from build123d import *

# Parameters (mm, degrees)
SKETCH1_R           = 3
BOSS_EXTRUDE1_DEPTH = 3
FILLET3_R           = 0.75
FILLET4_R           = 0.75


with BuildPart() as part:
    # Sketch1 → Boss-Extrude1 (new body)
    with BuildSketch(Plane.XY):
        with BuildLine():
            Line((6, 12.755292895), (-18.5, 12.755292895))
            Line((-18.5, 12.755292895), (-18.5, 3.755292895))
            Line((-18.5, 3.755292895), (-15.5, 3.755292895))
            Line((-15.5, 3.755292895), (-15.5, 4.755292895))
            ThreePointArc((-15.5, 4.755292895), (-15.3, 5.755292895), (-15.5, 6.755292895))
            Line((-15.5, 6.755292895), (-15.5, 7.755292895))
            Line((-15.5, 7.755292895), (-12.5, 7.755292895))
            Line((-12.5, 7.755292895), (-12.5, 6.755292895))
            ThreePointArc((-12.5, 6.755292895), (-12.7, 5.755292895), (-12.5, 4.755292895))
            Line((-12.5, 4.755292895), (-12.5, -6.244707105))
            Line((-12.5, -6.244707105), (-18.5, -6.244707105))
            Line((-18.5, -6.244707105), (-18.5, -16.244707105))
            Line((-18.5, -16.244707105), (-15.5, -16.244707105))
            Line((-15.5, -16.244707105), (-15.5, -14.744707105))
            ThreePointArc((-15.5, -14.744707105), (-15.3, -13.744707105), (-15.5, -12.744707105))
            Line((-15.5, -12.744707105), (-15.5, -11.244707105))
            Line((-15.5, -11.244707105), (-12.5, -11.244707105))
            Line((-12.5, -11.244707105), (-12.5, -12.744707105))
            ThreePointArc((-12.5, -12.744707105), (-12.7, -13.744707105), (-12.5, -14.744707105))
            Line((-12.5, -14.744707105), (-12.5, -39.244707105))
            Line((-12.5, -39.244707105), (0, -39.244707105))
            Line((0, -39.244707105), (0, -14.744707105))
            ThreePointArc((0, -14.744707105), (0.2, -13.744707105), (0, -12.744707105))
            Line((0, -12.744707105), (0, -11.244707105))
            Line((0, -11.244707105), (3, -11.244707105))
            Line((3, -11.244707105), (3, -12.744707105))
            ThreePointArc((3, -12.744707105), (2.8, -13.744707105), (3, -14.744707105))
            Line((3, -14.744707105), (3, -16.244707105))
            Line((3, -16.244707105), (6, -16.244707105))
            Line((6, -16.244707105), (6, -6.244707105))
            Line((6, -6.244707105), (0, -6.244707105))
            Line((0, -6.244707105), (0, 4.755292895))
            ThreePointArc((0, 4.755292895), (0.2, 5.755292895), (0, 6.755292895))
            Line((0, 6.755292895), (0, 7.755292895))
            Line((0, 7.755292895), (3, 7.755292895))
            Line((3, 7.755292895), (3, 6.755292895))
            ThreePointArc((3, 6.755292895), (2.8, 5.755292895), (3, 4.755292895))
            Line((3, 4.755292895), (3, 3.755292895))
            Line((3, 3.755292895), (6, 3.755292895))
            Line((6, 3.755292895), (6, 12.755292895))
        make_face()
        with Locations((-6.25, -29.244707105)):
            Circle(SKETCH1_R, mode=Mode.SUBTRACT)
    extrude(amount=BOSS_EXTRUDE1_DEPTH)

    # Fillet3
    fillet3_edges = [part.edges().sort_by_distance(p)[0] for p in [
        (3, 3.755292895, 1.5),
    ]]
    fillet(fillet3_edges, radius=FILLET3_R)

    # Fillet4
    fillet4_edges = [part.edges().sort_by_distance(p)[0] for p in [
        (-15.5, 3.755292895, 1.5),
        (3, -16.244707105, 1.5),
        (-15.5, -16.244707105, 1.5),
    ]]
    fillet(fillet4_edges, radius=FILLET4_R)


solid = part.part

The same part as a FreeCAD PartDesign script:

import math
import FreeCAD as App
import Part
import Sketcher


def edges_at(feature, points):
    """Names of the edges that pass closest to the given points."""
    edges = feature.Shape.Edges
    near = lambda p: min(range(len(edges)), key=lambda i: edges[i].distToShape(Part.Vertex(*p))[0])
    return sorted({f"Edge{near(p) + 1}" for p in points})

doc = App.newDocument("Part")
body = doc.addObject("PartDesign::Body", "Body")

# Sketch on XY plane
sketch1 = body.newObject("Sketcher::SketchObject", "Sketch")
sketch1.AttachmentSupport = (doc.getObject("XY_Plane"), [""])
sketch1.MapMode = "FlatFace"
sketch1.addGeometry([
    Part.LineSegment(App.Vector(6, 12.8, 0), App.Vector(-18.5, 12.8, 0)),  # 0
    Part.LineSegment(App.Vector(-18.5, 12.8, 0), App.Vector(-18.5, 3.8, 0)),  # 1
    Part.LineSegment(App.Vector(-18.5, 3.8, 0), App.Vector(-15.5, 3.8, 0)),  # 2
    Part.LineSegment(App.Vector(-15.5, 3.8, 0), App.Vector(-15.5, 4.8, 0)),  # 3
    Part.ArcOfCircle(Part.Circle(App.Vector(-17.9, 5.8, 0), App.Vector(0, 0, 1), 2.6), math.radians(-23), math.radians(23)),  # 4
    Part.LineSegment(App.Vector(-15.5, 6.8, 0), App.Vector(-15.5, 7.8, 0)),  # 5
    Part.LineSegment(App.Vector(-15.5, 7.8, 0), App.Vector(-12.5, 7.8, 0)),  # 6
    Part.LineSegment(App.Vector(-12.5, 7.8, 0), App.Vector(-12.5, 6.8, 0)),  # 7
    Part.ArcOfCircle(Part.Circle(App.Vector(-10.1, 5.8, 0), App.Vector(0, 0, 1), 2.6), math.radians(157), math.radians(203)),  # 8
    Part.LineSegment(App.Vector(-12.5, 4.8, 0), App.Vector(-12.5, -6.2, 0)),  # 9
    Part.LineSegment(App.Vector(-12.5, -6.2, 0), App.Vector(-18.5, -6.2, 0)),  # 10
    Part.LineSegment(App.Vector(-18.5, -6.2, 0), App.Vector(-18.5, -16.2, 0)),  # 11
    Part.LineSegment(App.Vector(-18.5, -16.2, 0), App.Vector(-15.5, -16.2, 0)),  # 12
    Part.LineSegment(App.Vector(-15.5, -16.2, 0), App.Vector(-15.5, -14.7, 0)),  # 13
    Part.ArcOfCircle(Part.Circle(App.Vector(-17.9, -13.7, 0), App.Vector(0, 0, 1), 2.6), math.radians(-23), math.radians(23)),  # 14
    Part.LineSegment(App.Vector(-15.5, -12.7, 0), App.Vector(-15.5, -11.2, 0)),  # 15
    Part.LineSegment(App.Vector(-15.5, -11.2, 0), App.Vector(-12.5, -11.2, 0)),  # 16
    Part.LineSegment(App.Vector(-12.5, -11.2, 0), App.Vector(-12.5, -12.7, 0)),  # 17
    Part.ArcOfCircle(Part.Circle(App.Vector(-10.1, -13.7, 0), App.Vector(0, 0, 1), 2.6), math.radians(157), math.radians(203)),  # 18
    Part.LineSegment(App.Vector(-12.5, -14.7, 0), App.Vector(-12.5, -39.2, 0)),  # 19
    Part.LineSegment(App.Vector(-12.5, -39.2, 0), App.Vector(0, -39.2, 0)),  # 20
    Part.LineSegment(App.Vector(0, -39.2, 0), App.Vector(0, -14.7, 0)),  # 21
    Part.ArcOfCircle(Part.Circle(App.Vector(-2.4, -13.7, 0), App.Vector(0, 0, 1), 2.6), math.radians(-23), math.radians(23)),  # 22
    Part.LineSegment(App.Vector(0, -12.7, 0), App.Vector(0, -11.2, 0)),  # 23
    Part.LineSegment(App.Vector(0, -11.2, 0), App.Vector(3, -11.2, 0)),  # 24
    Part.LineSegment(App.Vector(3, -11.2, 0), App.Vector(3, -12.7, 0)),  # 25
    Part.ArcOfCircle(Part.Circle(App.Vector(5.4, -13.7, 0), App.Vector(0, 0, 1), 2.6), math.radians(157), math.radians(203)),  # 26
    Part.LineSegment(App.Vector(3, -14.7, 0), App.Vector(3, -16.2, 0)),  # 27
    Part.LineSegment(App.Vector(3, -16.2, 0), App.Vector(6, -16.2, 0)),  # 28
    Part.LineSegment(App.Vector(6, -16.2, 0), App.Vector(6, -6.2, 0)),  # 29
    Part.LineSegment(App.Vector(6, -6.2, 0), App.Vector(0, -6.2, 0)),  # 30
    Part.LineSegment(App.Vector(0, -6.2, 0), App.Vector(0, 4.8, 0)),  # 31
    Part.ArcOfCircle(Part.Circle(App.Vector(-2.4, 5.8, 0), App.Vector(0, 0, 1), 2.6), math.radians(-23), math.radians(23)),  # 32
    Part.LineSegment(App.Vector(0, 6.8, 0), App.Vector(0, 7.8, 0)),  # 33
    Part.LineSegment(App.Vector(0, 7.8, 0), App.Vector(3, 7.8, 0)),  # 34
    Part.LineSegment(App.Vector(3, 7.8, 0), App.Vector(3, 6.8, 0)),  # 35
    Part.ArcOfCircle(Part.Circle(App.Vector(5.4, 5.8, 0), App.Vector(0, 0, 1), 2.6), math.radians(157), math.radians(203)),  # 36
    Part.LineSegment(App.Vector(3, 4.8, 0), App.Vector(3, 3.8, 0)),  # 37
    Part.LineSegment(App.Vector(3, 3.8, 0), App.Vector(6, 3.8, 0)),  # 38
    Part.LineSegment(App.Vector(6, 3.8, 0), App.Vector(6, 12.8, 0)),  # 39
    Part.Circle(App.Vector(-6.2, -29.2, 0), App.Vector(0, 0, 1), 3),  # 40
], False)
sketch1.addConstraint([
    Sketcher.Constraint("Coincident", 0, 2, 1, 1),
    Sketcher.Constraint("Coincident", 1, 2, 2, 1),
    Sketcher.Constraint("Coincident", 2, 2, 3, 1),
    Sketcher.Constraint("Coincident", 3, 2, 4, 1),
    Sketcher.Constraint("Coincident", 4, 2, 5, 1),
    Sketcher.Constraint("Coincident", 5, 2, 6, 1),
    Sketcher.Constraint("Coincident", 6, 2, 7, 1),
    Sketcher.Constraint("Coincident", 7, 2, 8, 1),
    Sketcher.Constraint("Coincident", 8, 2, 9, 1),
    Sketcher.Constraint("Coincident", 9, 2, 10, 1),
    Sketcher.Constraint("Coincident", 10, 2, 11, 1),
    Sketcher.Constraint("Coincident", 11, 2, 12, 1),
    Sketcher.Constraint("Coincident", 12, 2, 13, 1),
    Sketcher.Constraint("Coincident", 13, 2, 14, 1),
    Sketcher.Constraint("Coincident", 14, 2, 15, 1),
    Sketcher.Constraint("Coincident", 15, 2, 16, 1),
    Sketcher.Constraint("Coincident", 16, 2, 17, 1),
    Sketcher.Constraint("Coincident", 17, 2, 18, 1),
    Sketcher.Constraint("Coincident", 18, 2, 19, 1),
    Sketcher.Constraint("Coincident", 19, 2, 20, 1),
    Sketcher.Constraint("Coincident", 20, 2, 21, 1),
    Sketcher.Constraint("Coincident", 21, 2, 22, 1),
    Sketcher.Constraint("Coincident", 22, 2, 23, 1),
    Sketcher.Constraint("Coincident", 23, 2, 24, 1),
    Sketcher.Constraint("Coincident", 24, 2, 25, 1),
    Sketcher.Constraint("Coincident", 25, 2, 26, 1),
    Sketcher.Constraint("Coincident", 26, 2, 27, 1),
    Sketcher.Constraint("Coincident", 27, 2, 28, 1),
    Sketcher.Constraint("Coincident", 28, 2, 29, 1),
    Sketcher.Constraint("Coincident", 29, 2, 30, 1),
    Sketcher.Constraint("Coincident", 30, 2, 31, 1),
    Sketcher.Constraint("Coincident", 31, 2, 32, 1),
    Sketcher.Constraint("Coincident", 32, 2, 33, 1),
    Sketcher.Constraint("Coincident", 33, 2, 34, 1),
    Sketcher.Constraint("Coincident", 34, 2, 35, 1),
    Sketcher.Constraint("Coincident", 35, 2, 36, 1),
    Sketcher.Constraint("Coincident", 36, 2, 37, 1),
    Sketcher.Constraint("Coincident", 37, 2, 38, 1),
    Sketcher.Constraint("Coincident", 38, 2, 39, 1),
    Sketcher.Constraint("Coincident", 39, 2, 0, 1),
    Sketcher.Constraint("Horizontal", 0),
    Sketcher.Constraint("Vertical", 1),
    Sketcher.Constraint("Horizontal", 2),
    Sketcher.Constraint("Vertical", 3),
    Sketcher.Constraint("Vertical", 5),
    Sketcher.Constraint("Horizontal", 6),
    Sketcher.Constraint("Vertical", 7),
    Sketcher.Constraint("Vertical", 9),
    Sketcher.Constraint("Horizontal", 10),
    Sketcher.Constraint("Vertical", 11),
    Sketcher.Constraint("Horizontal", 12),
    Sketcher.Constraint("Vertical", 13),
    Sketcher.Constraint("Vertical", 15),
    Sketcher.Constraint("Horizontal", 16),
    Sketcher.Constraint("Vertical", 17),
    Sketcher.Constraint("Vertical", 19),
    Sketcher.Constraint("Horizontal", 20),
    Sketcher.Constraint("Vertical", 21),
    Sketcher.Constraint("Vertical", 23),
    Sketcher.Constraint("Horizontal", 24),
    Sketcher.Constraint("Vertical", 25),
    Sketcher.Constraint("Vertical", 27),
    Sketcher.Constraint("Horizontal", 28),
    Sketcher.Constraint("Vertical", 29),
    Sketcher.Constraint("Horizontal", 30),
    Sketcher.Constraint("Vertical", 31),
    Sketcher.Constraint("Vertical", 33),
    Sketcher.Constraint("Horizontal", 34),
    Sketcher.Constraint("Vertical", 35),
    Sketcher.Constraint("Vertical", 37),
    Sketcher.Constraint("Horizontal", 38),
    Sketcher.Constraint("Vertical", 39),
    Sketcher.Constraint("Equal", 4, 8),
    Sketcher.Constraint("Equal", 8, 14),
    Sketcher.Constraint("Equal", 14, 18),
    Sketcher.Constraint("Equal", 18, 22),
    Sketcher.Constraint("Equal", 22, 26),
    Sketcher.Constraint("Equal", 26, 32),
    Sketcher.Constraint("Equal", 32, 36),
    Sketcher.Constraint("PointOnObject", 20, 2, -2),
    Sketcher.Constraint("PointOnObject", 22, 2, -2),
    Sketcher.Constraint("PointOnObject", 30, 2, -2),
    Sketcher.Constraint("PointOnObject", 32, 2, -2),
    Sketcher.Constraint("Horizontal", 4, 3, 8, 3),
    Sketcher.Constraint("Horizontal", 14, 3, 18, 3),
    Sketcher.Constraint("Horizontal", 18, 3, 22, 3),
    Sketcher.Constraint("Horizontal", 22, 3, 26, 3),
    Sketcher.Constraint("Horizontal", 8, 3, 32, 3),
    Sketcher.Constraint("Horizontal", 32, 3, 36, 3),
    Sketcher.Constraint("Horizontal", 4, 2, 7, 2),
    Sketcher.Constraint("Horizontal", 3, 2, 8, 2),
    Sketcher.Constraint("Horizontal", 14, 2, 17, 2),
    Sketcher.Constraint("Horizontal", 13, 2, 18, 2),
    Sketcher.Constraint("Horizontal", 18, 2, 21, 2),
    Sketcher.Constraint("Horizontal", 17, 2, 22, 2),
    Sketcher.Constraint("Horizontal", 16, 2, 23, 2),
    Sketcher.Constraint("Horizontal", 22, 2, 25, 2),
    Sketcher.Constraint("Horizontal", 21, 2, 26, 2),
    Sketcher.Constraint("Horizontal", 12, 2, 27, 2),
    Sketcher.Constraint("Horizontal", 10, 2, 29, 2),
    Sketcher.Constraint("Horizontal", 8, 2, 31, 2),
    Sketcher.Constraint("Horizontal", 7, 2, 32, 2),
    Sketcher.Constraint("Horizontal", 6, 2, 33, 2),
    Sketcher.Constraint("Horizontal", 32, 2, 35, 2),
    Sketcher.Constraint("Horizontal", 31, 2, 36, 2),
    Sketcher.Constraint("Horizontal", 2, 2, 37, 2),
    Sketcher.Constraint("Vertical", 4, 3, 14, 3),
    Sketcher.Constraint("Vertical", 8, 3, 18, 3),
    Sketcher.Constraint("Vertical", 22, 3, 32, 3),
    Sketcher.Constraint("Vertical", 26, 3, 36, 3),
    Sketcher.Constraint("Vertical", 1, 2, 10, 2),
    Sketcher.Constraint("Vertical", 29, 2, 38, 2),
    Sketcher.Constraint("Equal", 2, 6),
    Sketcher.Constraint("Equal", 16, 24),
    Sketcher.Constraint("Equal", 24, 28),
    Sketcher.Constraint("Equal", 3, 5),
    Sketcher.Constraint("Equal", 13, 15),
    Sketcher.Constraint("Equal", 0, 19),
    Sketcher.Constraint("Diameter", 40, 6.0),
    Sketcher.Constraint("Radius", 4, 2.6),
    Sketcher.Constraint("DistanceX", 2, 1, 2, 2, 3.0),
    Sketcher.Constraint("DistanceY", 1, 2, 1, 1, 9.0),
    Sketcher.Constraint("DistanceY", 3, 1, 3, 2, 1.0),
    Sketcher.Constraint("DistanceY", 9, 2, 9, 1, 11.0),
    Sketcher.Constraint("DistanceY", 11, 2, 11, 1, 10.0),
    Sketcher.Constraint("DistanceX", 0, 2, 0, 1, 24.5),
    Sketcher.Constraint("DistanceY", 13, 1, 13, 2, 1.5),
    Sketcher.Constraint("DistanceY", 40, 3, 8, 3, 35.0),
    Sketcher.Constraint("DistanceY", 4, 3, 0, 2, 7.0),
    Sketcher.Constraint("DistanceX", 40, 3, -1, 1, 6.25),
    Sketcher.Constraint("DistanceY", -1, 1, 4, 3, 5.755293),
])
pad1 = body.newObject("PartDesign::Pad", "Pad")
pad1.Profile = sketch1
pad1.Length = 3
doc.recompute()

fillet = body.newObject("PartDesign::Fillet", "Fillet")
fillet.Base = (pad1, edges_at(pad1, [(3, 3.755, 1.5)]))
fillet.Radius = 0.75
doc.recompute()

fillet2 = body.newObject("PartDesign::Fillet", "Fillet001")
fillet2.Base = (fillet, edges_at(fillet, [(-15.5, 3.755, 1.5), (3, -16.245, 1.5), (-15.5, -16.245, 1.5)]))
fillet2.Radius = 0.75

doc.recompute()
